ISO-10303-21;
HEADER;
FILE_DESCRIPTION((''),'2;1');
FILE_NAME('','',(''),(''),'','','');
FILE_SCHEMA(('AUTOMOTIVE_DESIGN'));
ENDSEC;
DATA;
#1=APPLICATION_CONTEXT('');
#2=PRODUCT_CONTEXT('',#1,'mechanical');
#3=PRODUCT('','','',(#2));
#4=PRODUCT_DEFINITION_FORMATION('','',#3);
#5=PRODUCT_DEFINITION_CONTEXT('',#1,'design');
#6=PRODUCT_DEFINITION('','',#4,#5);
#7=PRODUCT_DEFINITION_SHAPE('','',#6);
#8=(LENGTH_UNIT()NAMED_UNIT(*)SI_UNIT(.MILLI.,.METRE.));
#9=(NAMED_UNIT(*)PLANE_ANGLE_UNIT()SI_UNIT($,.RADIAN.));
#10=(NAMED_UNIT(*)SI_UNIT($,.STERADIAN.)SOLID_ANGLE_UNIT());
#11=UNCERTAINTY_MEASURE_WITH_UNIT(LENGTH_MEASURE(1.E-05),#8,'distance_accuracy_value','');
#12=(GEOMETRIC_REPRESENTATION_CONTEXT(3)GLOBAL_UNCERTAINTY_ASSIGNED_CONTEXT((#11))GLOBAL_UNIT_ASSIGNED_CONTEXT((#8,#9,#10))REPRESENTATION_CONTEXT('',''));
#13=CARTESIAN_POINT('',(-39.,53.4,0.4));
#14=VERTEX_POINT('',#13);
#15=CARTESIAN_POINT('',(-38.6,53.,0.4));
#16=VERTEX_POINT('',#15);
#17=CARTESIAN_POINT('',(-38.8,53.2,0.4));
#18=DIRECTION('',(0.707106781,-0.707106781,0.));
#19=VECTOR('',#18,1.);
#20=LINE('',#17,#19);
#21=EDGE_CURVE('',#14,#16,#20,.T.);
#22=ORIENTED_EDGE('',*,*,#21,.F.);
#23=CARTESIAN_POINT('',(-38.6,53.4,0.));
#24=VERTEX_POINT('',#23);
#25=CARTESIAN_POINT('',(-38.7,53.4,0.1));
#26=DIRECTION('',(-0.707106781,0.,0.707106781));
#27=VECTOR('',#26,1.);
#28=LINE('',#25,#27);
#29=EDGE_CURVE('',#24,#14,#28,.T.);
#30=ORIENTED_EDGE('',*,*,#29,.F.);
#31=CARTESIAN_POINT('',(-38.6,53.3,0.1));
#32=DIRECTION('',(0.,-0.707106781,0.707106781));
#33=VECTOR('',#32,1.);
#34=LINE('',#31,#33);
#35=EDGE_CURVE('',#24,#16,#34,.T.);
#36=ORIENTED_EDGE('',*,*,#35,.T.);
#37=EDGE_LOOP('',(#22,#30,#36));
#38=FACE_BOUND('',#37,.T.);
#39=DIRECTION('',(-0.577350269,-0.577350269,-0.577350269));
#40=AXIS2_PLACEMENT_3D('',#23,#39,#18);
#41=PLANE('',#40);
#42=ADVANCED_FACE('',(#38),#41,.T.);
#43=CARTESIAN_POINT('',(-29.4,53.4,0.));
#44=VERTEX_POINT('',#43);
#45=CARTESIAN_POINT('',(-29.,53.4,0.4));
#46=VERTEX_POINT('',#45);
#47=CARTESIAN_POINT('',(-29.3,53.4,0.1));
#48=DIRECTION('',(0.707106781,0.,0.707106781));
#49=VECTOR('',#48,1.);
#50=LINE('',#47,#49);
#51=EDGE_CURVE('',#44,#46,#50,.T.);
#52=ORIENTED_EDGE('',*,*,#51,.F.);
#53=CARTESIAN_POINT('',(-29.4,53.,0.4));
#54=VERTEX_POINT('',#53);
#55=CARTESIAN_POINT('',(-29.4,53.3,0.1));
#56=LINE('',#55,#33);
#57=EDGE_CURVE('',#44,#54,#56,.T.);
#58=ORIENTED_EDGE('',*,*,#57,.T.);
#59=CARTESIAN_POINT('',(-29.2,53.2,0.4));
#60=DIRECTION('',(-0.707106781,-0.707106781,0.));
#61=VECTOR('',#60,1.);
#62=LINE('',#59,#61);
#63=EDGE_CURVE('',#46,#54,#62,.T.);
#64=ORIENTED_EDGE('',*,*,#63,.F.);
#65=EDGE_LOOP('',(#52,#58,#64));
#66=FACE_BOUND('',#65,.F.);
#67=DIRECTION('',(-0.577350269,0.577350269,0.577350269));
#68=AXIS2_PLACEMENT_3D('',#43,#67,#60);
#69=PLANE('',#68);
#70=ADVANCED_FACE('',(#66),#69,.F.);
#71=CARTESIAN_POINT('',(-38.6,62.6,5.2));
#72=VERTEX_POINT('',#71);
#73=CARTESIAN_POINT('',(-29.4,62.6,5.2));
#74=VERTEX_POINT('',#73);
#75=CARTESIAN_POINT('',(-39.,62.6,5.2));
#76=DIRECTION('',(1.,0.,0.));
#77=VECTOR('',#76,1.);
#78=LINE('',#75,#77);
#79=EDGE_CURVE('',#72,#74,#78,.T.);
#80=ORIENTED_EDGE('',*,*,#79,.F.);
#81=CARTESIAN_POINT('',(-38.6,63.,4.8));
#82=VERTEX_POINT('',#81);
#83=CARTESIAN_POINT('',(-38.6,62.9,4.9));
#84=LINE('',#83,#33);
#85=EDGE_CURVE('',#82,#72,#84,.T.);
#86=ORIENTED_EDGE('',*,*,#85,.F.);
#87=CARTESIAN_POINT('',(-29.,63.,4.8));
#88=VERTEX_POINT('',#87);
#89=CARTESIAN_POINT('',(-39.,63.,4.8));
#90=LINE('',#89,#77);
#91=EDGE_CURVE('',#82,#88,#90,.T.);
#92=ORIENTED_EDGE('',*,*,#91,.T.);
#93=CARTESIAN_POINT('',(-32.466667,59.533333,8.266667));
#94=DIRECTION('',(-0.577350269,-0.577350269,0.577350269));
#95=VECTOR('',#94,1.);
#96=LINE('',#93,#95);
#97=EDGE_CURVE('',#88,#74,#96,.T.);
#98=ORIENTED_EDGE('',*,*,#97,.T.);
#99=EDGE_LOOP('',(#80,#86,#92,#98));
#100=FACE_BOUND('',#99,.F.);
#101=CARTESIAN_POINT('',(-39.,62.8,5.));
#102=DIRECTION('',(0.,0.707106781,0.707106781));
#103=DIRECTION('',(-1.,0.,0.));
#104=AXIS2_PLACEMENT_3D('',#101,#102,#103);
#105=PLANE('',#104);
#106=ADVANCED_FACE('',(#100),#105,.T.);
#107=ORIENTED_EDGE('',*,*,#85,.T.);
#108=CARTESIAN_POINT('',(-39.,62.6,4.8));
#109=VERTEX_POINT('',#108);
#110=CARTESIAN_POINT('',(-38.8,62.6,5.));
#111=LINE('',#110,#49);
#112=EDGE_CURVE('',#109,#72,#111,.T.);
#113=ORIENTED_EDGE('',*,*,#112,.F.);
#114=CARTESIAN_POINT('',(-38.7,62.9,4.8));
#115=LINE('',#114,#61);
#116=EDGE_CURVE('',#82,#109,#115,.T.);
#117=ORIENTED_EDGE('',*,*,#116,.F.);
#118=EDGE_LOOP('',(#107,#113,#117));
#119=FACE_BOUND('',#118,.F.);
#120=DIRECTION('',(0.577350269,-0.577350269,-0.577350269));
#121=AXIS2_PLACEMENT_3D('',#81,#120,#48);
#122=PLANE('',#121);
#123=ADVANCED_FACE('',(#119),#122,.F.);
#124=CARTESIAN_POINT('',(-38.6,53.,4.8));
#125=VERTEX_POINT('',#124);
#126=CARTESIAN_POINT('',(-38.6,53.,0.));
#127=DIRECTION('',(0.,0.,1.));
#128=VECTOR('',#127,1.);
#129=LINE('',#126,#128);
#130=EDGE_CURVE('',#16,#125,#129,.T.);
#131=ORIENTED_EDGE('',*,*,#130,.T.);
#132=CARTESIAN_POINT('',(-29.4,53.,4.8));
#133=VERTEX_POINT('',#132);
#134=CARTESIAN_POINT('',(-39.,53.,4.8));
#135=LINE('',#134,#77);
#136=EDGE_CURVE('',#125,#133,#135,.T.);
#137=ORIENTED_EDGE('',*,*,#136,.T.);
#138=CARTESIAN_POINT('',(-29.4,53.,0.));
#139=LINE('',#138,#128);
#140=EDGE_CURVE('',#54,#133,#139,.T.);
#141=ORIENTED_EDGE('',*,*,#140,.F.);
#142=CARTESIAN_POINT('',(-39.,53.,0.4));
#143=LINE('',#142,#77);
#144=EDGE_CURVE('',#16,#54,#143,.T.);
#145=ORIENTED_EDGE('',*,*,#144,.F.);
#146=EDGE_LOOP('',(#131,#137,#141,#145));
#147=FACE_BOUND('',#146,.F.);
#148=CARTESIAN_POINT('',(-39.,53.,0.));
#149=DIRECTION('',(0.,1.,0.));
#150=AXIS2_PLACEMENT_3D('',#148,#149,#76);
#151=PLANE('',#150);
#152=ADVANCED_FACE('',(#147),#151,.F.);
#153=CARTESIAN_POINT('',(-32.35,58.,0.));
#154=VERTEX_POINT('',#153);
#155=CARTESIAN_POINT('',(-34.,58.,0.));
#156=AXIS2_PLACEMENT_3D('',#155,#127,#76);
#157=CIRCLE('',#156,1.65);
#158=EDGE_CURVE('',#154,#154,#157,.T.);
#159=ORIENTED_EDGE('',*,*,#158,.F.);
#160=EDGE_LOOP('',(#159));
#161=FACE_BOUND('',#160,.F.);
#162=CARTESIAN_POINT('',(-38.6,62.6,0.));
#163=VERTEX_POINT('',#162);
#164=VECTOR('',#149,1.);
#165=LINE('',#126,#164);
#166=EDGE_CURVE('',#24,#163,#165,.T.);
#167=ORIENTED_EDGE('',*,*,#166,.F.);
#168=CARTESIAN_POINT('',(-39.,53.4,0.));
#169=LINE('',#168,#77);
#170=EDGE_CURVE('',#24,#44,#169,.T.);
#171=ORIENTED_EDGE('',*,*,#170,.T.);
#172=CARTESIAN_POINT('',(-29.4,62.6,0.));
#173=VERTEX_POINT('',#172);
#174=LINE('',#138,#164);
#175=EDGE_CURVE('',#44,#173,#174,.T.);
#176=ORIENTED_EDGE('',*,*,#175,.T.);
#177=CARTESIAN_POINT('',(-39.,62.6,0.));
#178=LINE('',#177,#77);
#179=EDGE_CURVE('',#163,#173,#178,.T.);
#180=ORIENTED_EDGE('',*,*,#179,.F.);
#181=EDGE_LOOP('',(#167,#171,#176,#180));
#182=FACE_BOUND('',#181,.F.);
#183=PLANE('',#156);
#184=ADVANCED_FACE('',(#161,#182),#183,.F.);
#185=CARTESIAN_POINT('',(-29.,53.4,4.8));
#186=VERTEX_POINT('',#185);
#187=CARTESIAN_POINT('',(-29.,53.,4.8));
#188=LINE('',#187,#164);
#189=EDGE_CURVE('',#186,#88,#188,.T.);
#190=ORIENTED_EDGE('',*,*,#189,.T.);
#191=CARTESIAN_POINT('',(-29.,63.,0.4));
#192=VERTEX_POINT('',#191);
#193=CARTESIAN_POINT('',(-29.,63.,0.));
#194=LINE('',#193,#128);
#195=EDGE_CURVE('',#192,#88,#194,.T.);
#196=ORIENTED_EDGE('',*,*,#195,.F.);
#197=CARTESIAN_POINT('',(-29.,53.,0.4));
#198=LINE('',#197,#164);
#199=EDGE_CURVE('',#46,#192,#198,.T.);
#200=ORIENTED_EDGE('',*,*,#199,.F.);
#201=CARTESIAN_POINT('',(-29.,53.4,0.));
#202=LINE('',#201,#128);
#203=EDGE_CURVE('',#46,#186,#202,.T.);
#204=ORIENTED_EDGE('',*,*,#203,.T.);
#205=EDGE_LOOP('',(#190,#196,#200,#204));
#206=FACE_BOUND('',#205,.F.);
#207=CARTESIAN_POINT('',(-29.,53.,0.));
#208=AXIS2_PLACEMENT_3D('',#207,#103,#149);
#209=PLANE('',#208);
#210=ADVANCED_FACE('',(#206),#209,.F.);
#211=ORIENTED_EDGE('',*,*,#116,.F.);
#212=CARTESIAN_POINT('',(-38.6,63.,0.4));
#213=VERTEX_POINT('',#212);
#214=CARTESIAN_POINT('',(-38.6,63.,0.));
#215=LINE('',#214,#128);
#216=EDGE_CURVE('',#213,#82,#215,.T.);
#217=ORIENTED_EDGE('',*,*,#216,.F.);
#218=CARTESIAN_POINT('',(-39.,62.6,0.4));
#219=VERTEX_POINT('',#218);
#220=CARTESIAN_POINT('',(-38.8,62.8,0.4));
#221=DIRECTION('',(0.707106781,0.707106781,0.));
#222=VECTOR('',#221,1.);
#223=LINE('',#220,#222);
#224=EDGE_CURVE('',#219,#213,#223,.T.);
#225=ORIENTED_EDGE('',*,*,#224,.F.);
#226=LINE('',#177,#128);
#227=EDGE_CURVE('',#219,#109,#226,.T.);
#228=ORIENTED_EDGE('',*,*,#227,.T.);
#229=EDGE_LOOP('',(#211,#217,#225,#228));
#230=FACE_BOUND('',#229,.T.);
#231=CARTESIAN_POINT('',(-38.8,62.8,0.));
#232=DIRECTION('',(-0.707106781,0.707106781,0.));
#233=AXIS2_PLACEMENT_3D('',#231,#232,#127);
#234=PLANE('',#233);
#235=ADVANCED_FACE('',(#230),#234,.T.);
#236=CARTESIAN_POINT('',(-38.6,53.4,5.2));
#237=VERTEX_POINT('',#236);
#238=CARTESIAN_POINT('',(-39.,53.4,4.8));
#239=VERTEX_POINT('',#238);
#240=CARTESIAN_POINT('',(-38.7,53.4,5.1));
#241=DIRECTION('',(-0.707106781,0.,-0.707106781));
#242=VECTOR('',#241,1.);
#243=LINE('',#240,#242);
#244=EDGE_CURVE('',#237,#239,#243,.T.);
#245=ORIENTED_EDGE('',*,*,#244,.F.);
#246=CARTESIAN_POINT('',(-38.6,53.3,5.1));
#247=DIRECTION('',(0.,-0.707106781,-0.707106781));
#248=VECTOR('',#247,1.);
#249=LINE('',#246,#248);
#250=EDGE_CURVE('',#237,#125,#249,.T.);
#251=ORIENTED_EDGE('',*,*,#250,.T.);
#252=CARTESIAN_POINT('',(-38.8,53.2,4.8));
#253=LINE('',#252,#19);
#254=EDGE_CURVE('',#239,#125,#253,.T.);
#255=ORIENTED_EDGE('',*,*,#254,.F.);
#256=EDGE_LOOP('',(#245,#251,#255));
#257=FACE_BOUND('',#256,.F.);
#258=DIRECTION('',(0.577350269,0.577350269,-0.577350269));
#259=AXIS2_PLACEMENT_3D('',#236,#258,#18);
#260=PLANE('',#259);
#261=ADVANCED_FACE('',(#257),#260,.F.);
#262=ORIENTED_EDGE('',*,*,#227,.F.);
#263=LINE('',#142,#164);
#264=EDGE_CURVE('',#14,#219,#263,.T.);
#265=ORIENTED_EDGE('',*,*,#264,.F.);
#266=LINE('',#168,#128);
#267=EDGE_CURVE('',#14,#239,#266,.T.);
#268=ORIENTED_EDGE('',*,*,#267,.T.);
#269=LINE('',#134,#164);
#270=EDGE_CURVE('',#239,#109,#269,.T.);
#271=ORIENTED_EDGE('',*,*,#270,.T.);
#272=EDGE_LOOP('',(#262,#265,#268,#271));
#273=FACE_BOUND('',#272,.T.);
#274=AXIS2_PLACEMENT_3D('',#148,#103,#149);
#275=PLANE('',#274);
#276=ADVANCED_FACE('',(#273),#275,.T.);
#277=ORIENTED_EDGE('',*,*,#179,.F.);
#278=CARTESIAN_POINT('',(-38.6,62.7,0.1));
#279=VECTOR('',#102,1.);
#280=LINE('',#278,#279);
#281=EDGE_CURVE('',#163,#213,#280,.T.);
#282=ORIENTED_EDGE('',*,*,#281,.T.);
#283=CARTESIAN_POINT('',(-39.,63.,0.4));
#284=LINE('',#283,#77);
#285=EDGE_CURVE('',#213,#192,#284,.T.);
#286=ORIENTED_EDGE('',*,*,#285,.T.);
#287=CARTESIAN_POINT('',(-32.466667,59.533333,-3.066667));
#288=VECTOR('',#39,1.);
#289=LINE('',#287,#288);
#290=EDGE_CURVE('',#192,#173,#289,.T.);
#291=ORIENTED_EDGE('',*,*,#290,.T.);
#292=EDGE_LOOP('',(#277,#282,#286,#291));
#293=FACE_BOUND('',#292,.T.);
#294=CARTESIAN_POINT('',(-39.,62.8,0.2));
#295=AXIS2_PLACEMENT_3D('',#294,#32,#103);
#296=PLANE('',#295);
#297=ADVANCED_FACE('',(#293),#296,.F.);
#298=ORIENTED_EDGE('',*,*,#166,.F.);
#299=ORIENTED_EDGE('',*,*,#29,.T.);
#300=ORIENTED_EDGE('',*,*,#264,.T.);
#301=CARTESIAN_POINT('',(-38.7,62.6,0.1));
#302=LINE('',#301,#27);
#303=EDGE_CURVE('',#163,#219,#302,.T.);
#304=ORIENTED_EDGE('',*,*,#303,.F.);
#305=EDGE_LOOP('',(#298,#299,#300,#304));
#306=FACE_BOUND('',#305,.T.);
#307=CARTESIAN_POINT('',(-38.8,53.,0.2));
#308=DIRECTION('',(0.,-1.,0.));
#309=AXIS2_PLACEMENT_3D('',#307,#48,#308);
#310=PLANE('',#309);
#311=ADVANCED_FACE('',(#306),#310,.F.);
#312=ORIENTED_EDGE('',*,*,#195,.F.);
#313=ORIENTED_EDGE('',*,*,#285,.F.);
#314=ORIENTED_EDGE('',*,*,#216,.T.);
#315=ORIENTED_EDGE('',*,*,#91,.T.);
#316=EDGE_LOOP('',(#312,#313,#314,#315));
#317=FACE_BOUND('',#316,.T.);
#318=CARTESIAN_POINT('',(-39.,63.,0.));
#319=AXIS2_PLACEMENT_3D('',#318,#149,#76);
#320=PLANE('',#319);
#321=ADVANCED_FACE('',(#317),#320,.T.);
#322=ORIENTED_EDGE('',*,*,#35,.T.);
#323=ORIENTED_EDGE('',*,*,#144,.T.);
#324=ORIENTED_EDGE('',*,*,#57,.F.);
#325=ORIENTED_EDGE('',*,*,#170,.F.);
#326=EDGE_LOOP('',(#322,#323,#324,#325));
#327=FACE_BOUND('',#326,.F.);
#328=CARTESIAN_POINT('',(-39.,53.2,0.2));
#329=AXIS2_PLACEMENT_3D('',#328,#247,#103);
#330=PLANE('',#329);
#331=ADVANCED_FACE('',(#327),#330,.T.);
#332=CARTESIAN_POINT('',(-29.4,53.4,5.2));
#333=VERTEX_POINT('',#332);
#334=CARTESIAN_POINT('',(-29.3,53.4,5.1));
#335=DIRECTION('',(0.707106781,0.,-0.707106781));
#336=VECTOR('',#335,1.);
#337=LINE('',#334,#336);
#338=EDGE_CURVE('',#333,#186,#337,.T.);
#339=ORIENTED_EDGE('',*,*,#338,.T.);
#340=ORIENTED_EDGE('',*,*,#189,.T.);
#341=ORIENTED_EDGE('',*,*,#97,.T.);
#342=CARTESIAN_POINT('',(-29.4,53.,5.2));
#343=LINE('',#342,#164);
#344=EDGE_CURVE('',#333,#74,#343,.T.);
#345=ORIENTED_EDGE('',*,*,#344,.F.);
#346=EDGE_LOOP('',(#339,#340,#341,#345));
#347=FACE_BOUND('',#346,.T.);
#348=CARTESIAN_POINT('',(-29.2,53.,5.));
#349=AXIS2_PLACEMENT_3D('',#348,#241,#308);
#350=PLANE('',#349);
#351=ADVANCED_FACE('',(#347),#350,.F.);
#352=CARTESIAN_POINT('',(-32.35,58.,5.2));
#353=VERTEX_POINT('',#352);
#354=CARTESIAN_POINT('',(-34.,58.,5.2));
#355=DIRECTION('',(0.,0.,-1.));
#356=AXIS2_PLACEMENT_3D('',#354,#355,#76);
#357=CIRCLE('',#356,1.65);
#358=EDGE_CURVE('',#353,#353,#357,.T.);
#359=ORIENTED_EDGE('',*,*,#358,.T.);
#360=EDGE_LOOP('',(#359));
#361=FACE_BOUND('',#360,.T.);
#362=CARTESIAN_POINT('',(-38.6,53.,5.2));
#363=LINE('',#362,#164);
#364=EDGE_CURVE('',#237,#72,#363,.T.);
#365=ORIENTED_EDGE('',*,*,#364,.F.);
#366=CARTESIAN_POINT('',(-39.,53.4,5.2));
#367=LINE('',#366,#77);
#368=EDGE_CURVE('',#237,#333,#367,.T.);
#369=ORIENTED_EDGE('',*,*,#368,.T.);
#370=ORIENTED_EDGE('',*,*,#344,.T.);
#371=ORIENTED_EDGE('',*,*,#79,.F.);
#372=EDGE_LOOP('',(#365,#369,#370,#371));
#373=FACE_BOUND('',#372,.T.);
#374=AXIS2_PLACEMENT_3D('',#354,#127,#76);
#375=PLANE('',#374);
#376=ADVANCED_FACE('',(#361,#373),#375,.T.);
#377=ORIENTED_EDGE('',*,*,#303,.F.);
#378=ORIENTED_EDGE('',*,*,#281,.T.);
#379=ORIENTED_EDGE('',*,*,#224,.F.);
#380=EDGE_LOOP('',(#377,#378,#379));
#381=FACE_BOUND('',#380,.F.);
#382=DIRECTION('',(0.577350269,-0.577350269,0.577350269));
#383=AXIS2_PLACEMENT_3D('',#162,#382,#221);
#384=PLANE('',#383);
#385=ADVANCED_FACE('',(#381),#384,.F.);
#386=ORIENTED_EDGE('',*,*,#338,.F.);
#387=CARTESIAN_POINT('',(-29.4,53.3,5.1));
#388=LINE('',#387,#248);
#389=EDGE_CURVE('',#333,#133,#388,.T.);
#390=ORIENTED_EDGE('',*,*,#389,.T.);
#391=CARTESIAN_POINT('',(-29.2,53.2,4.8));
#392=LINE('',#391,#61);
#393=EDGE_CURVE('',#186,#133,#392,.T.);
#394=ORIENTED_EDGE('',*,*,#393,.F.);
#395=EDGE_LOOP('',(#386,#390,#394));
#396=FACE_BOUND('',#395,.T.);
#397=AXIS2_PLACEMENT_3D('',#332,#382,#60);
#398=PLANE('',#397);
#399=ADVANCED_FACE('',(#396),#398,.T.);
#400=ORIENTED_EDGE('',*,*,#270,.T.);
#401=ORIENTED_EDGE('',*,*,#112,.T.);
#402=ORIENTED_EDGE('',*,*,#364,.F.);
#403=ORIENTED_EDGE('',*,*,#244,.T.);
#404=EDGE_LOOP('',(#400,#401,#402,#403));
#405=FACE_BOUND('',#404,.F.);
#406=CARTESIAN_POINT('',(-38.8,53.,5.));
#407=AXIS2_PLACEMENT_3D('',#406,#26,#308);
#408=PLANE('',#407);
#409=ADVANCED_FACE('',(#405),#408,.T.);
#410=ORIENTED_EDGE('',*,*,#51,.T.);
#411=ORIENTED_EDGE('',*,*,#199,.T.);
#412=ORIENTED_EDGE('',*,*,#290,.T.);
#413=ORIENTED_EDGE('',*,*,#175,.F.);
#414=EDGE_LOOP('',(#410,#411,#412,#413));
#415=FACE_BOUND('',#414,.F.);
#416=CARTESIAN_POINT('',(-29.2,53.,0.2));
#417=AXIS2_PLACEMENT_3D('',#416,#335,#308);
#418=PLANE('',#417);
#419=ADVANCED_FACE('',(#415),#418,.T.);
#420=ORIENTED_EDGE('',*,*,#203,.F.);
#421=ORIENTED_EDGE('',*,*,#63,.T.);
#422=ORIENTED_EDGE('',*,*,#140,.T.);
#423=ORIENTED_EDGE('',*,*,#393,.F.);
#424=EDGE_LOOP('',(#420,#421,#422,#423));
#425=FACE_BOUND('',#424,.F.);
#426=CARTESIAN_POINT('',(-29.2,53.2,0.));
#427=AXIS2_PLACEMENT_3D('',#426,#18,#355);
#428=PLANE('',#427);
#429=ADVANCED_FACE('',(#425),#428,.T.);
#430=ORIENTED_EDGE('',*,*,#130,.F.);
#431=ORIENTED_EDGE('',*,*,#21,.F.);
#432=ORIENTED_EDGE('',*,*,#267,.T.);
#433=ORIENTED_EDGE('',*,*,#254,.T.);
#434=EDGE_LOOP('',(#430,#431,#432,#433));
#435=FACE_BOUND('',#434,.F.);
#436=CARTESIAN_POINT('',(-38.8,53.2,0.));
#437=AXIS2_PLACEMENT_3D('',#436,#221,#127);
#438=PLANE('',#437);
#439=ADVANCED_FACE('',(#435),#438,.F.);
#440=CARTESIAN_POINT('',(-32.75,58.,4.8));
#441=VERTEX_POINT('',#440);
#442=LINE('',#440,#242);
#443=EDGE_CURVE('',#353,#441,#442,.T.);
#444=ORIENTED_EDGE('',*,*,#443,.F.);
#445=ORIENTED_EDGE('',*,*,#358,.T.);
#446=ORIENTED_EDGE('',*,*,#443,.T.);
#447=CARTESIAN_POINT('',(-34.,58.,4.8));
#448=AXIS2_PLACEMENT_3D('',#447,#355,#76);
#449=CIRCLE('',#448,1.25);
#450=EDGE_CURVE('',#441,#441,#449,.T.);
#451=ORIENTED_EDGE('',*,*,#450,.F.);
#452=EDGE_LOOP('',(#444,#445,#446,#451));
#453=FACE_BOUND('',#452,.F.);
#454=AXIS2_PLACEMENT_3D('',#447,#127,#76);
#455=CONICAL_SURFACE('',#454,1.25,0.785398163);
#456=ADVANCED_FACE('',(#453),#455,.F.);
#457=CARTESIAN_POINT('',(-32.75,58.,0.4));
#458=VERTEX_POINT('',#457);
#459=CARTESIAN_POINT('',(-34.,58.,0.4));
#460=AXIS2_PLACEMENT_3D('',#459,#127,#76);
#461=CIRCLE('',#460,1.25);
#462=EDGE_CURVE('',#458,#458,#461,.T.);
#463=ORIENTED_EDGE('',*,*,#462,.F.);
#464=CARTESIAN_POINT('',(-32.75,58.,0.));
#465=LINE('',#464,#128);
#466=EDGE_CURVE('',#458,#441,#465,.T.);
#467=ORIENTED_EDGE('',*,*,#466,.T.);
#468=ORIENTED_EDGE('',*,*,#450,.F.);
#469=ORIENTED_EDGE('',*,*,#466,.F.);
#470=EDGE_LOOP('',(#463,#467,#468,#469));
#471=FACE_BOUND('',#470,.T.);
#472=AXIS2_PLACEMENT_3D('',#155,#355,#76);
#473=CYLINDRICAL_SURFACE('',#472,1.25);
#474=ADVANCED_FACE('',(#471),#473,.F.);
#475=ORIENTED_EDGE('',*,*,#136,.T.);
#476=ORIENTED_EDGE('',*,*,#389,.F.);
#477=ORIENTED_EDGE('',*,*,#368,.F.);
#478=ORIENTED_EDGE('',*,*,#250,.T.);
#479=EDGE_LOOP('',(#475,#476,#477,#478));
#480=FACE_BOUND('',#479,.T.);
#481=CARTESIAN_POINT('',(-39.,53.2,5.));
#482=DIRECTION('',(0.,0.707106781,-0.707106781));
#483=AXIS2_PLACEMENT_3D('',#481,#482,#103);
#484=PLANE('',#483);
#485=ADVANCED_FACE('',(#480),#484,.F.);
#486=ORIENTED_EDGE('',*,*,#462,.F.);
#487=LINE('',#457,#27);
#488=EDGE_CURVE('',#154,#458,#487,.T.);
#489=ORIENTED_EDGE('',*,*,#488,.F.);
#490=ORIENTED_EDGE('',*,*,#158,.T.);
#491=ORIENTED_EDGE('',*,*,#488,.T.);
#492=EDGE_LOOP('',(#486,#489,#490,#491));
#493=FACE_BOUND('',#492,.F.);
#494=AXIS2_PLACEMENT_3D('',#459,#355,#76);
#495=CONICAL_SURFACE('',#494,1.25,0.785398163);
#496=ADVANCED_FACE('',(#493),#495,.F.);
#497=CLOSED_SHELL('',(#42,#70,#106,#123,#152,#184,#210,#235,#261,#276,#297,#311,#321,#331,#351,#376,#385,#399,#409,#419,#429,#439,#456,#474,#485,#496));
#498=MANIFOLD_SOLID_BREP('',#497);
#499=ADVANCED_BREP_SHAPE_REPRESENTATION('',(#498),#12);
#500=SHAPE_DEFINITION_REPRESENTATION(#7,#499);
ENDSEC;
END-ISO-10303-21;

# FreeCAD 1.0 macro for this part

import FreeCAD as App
import Part
import Sketcher
Q = App.Units.Quantity


def edges_at(feature, points):
    """Names of the edges that pass closest to the given points."""
    edges = feature.Shape.Edges
    near = lambda p: min(range(len(edges)), key=lambda i: edges[i].distToShape(Part.Vertex(*p))[0])
    return sorted({f"Edge{near(p) + 1}" for p in points})


def add_polygon(sketch, points):
    """Adds a closed chain of lines whose ends are joined by coincident constraints."""
    first, n = sketch.GeometryCount, len(points)
    for a, b in zip(points, points[1:] + points[:1]):
        sketch.addGeometry(Part.LineSegment(App.Vector(*a, 0), App.Vector(*b, 0)), False)
    for i in range(n):
        sketch.addConstraint(Sketcher.Constraint("Coincident", first + i, 2, first + (i + 1) % n, 1))

doc = App.newDocument("Part")
body = doc.addObject("PartDesign::Body", "Body")

# Sketch on XY plane
sketch1 = doc.addObject("Sketcher::SketchObject", "Sketch")
body.addObject(sketch1)
sketch1.AttachmentSupport = (doc.XY_Plane, [""])
sketch1.MapMode = "FlatFace"
sketch1.addGeometry(Part.Circle(App.Vector(0, 0, 0), App.Vector(0, 0, 1), 1.2), False)
sketch1.addConstraint([
    Sketcher.Constraint("Coincident", 0, 3, -1, 1),
    Sketcher.Constraint("Diameter", 0, Q("2.5 mm")),
])
pad1 = doc.addObject("PartDesign::Pad", "Pad")
body.addObject(pad1)
pad1.Profile = sketch1
pad1.Length = 10
body2 = doc.addObject("PartDesign::Body", "Body001")

# Sketch on XY plane
sketch2 = doc.addObject("Sketcher::SketchObject", "Sketch001")
body2.addObject(sketch2)
sketch2.AttachmentSupport = (doc.getObject("XY_Plane001"), [""])
sketch2.MapMode = "FlatFace"
add_polygon(sketch2, [(-5, 5), (-5, -5), (5, -5), (5, 5)])  # lines 0-3
sketch2.addConstraint([
    Sketcher.Constraint("Vertical", 0),
    Sketcher.Constraint("Horizontal", 1),
    Sketcher.Constraint("Vertical", 2),
    Sketcher.Constraint("Horizontal", 3),
    Sketcher.Constraint("Symmetric", 0, 2, 2, 2, -1, 1),
    Sketcher.Constraint("Equal", 3, 0),
    Sketcher.Constraint("DistanceX", 1, 1, 1, 2, Q("10 mm")),
])
pad2 = doc.addObject("PartDesign::Pad", "Pad001")
body2.addObject(pad2)
pad2.Profile = sketch2
pad2.Length = 5.2
doc.recompute()

chamfer = doc.addObject("PartDesign::Chamfer", "Chamfer")
body2.addObject(chamfer)
chamfer.Base = (pad2, edges_at(pad2, [
    (-5, -5, 2.6),
    (-5, 0, 5.2),
    (-5, 5, 2.6),
    (-5, 0, 0),
    (5, -5, 2.6),
    (5, 0, 5.2),
    (5, 0, 0),
    (0, -5, 0),
    (0, -5, 5.2),
    (0, 5, 0),
    (0, 5, 5.2),
]))
chamfer.Size = 0.4
doc.recompute()

boolean = doc.addObject("PartDesign::Boolean", "Boolean")
body2.addObject(boolean)
boolean.Type = "Cut"
boolean.addObjects([body])
doc.recompute()

chamfer2 = doc.addObject("PartDesign::Chamfer", "Chamfer001")
body2.addObject(chamfer2)
chamfer2.Base = (boolean, edges_at(boolean, [(-1.25, 0, 0), (-1.25, 0, 5.2)]))
chamfer2.Size = 0.4
body3 = doc.addObject("PartDesign::Body", "Body002")
doc.recompute()

body2.Placement = App.Placement(App.Vector(-34, 58, 0), App.Rotation(App.Vector(0, 0, 1), 0))
boolean2 = doc.addObject("PartDesign::Boolean", "Boolean001")
body3.addObject(boolean2)
boolean2.Type = "Fuse"
boolean2.addObjects([body2])

doc.recompute()
